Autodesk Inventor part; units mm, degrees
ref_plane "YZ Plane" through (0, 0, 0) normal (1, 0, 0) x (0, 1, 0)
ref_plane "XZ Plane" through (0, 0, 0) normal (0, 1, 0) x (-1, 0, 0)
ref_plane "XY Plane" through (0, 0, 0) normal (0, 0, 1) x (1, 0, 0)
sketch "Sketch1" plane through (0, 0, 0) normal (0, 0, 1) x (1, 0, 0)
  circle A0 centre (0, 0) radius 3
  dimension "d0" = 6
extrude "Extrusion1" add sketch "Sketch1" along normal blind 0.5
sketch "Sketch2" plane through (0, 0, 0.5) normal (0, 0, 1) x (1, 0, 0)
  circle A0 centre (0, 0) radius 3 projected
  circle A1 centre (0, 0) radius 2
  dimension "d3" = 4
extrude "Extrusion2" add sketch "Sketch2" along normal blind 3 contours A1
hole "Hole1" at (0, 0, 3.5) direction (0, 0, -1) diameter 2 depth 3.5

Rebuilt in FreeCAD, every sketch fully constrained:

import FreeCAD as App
import Part
import Sketcher
Q = App.Units.Quantity

doc = App.newDocument("Part")
body = doc.addObject("PartDesign::Body", "Body")

sketch1 = body.newObject("Sketcher::SketchObject", "Sketch")
sketch1.AttachmentSupport = (doc.getObject("XY_Plane"), [""])
sketch1.MapMode = "FlatFace"
sketch1.addGeometry(Part.Circle(App.Vector(0, 0, 0), App.Vector(0, 0, 1), 3), False)
sketch1.addConstraint(Sketcher.Constraint("Coincident", 0, 3, -1, 1))
sketch1.addConstraint(Sketcher.Constraint("Diameter", 0, Q("6 mm")))
pad1 = body.newObject("PartDesign::Pad", "Pad")
pad1.Profile = sketch1
pad1.Length = 0.5

sketch2 = body.newObject("Sketcher::SketchObject", "Sketch001")
sketch2.AttachmentSupport = (doc.getObject("XY_Plane"), [""])
sketch2.MapMode = "FlatFace"
sketch2.AttachmentOffset = App.Placement(App.Vector(0, 0, 0.5), App.Rotation())
sketch2.addGeometry(Part.Circle(App.Vector(0, 0, 0), App.Vector(0, 0, 1), 2), False)
sketch2.addConstraint(Sketcher.Constraint("Coincident", 0, 3, -1, 1))
sketch2.addConstraint(Sketcher.Constraint("Diameter", 0, Q("4 mm")))
pad2 = body.newObject("PartDesign::Pad", "Pad001")
pad2.Profile = sketch2
pad2.Length = 3

sketch3 = body.newObject("Sketcher::SketchObject", "Sketch002")
sketch3.AttachmentSupport = (doc.getObject("XY_Plane"), [""])
sketch3.MapMode = "FlatFace"
sketch3.AttachmentOffset = App.Placement(App.Vector(0, 0, 3.5), App.Rotation())
sketch3.addGeometry(Part.Circle(App.Vector(0, 0, 0), App.Vector(0, 0, 1), 1), False)
sketch3.addConstraint(Sketcher.Constraint("Coincident", 0, 3, -1, 1))
sketch3.addConstraint(Sketcher.Constraint("Diameter", 0, Q("2 mm")))
doc.recompute()
hole = body.newObject("PartDesign::Hole", "Hole")
hole.Profile = sketch3
hole.ThreadType = "None"
hole.Diameter = 2
hole.DepthType = "Dimension"
hole.Depth = 3.5
hole.DrillPoint = "Flat"

doc.recompute()
